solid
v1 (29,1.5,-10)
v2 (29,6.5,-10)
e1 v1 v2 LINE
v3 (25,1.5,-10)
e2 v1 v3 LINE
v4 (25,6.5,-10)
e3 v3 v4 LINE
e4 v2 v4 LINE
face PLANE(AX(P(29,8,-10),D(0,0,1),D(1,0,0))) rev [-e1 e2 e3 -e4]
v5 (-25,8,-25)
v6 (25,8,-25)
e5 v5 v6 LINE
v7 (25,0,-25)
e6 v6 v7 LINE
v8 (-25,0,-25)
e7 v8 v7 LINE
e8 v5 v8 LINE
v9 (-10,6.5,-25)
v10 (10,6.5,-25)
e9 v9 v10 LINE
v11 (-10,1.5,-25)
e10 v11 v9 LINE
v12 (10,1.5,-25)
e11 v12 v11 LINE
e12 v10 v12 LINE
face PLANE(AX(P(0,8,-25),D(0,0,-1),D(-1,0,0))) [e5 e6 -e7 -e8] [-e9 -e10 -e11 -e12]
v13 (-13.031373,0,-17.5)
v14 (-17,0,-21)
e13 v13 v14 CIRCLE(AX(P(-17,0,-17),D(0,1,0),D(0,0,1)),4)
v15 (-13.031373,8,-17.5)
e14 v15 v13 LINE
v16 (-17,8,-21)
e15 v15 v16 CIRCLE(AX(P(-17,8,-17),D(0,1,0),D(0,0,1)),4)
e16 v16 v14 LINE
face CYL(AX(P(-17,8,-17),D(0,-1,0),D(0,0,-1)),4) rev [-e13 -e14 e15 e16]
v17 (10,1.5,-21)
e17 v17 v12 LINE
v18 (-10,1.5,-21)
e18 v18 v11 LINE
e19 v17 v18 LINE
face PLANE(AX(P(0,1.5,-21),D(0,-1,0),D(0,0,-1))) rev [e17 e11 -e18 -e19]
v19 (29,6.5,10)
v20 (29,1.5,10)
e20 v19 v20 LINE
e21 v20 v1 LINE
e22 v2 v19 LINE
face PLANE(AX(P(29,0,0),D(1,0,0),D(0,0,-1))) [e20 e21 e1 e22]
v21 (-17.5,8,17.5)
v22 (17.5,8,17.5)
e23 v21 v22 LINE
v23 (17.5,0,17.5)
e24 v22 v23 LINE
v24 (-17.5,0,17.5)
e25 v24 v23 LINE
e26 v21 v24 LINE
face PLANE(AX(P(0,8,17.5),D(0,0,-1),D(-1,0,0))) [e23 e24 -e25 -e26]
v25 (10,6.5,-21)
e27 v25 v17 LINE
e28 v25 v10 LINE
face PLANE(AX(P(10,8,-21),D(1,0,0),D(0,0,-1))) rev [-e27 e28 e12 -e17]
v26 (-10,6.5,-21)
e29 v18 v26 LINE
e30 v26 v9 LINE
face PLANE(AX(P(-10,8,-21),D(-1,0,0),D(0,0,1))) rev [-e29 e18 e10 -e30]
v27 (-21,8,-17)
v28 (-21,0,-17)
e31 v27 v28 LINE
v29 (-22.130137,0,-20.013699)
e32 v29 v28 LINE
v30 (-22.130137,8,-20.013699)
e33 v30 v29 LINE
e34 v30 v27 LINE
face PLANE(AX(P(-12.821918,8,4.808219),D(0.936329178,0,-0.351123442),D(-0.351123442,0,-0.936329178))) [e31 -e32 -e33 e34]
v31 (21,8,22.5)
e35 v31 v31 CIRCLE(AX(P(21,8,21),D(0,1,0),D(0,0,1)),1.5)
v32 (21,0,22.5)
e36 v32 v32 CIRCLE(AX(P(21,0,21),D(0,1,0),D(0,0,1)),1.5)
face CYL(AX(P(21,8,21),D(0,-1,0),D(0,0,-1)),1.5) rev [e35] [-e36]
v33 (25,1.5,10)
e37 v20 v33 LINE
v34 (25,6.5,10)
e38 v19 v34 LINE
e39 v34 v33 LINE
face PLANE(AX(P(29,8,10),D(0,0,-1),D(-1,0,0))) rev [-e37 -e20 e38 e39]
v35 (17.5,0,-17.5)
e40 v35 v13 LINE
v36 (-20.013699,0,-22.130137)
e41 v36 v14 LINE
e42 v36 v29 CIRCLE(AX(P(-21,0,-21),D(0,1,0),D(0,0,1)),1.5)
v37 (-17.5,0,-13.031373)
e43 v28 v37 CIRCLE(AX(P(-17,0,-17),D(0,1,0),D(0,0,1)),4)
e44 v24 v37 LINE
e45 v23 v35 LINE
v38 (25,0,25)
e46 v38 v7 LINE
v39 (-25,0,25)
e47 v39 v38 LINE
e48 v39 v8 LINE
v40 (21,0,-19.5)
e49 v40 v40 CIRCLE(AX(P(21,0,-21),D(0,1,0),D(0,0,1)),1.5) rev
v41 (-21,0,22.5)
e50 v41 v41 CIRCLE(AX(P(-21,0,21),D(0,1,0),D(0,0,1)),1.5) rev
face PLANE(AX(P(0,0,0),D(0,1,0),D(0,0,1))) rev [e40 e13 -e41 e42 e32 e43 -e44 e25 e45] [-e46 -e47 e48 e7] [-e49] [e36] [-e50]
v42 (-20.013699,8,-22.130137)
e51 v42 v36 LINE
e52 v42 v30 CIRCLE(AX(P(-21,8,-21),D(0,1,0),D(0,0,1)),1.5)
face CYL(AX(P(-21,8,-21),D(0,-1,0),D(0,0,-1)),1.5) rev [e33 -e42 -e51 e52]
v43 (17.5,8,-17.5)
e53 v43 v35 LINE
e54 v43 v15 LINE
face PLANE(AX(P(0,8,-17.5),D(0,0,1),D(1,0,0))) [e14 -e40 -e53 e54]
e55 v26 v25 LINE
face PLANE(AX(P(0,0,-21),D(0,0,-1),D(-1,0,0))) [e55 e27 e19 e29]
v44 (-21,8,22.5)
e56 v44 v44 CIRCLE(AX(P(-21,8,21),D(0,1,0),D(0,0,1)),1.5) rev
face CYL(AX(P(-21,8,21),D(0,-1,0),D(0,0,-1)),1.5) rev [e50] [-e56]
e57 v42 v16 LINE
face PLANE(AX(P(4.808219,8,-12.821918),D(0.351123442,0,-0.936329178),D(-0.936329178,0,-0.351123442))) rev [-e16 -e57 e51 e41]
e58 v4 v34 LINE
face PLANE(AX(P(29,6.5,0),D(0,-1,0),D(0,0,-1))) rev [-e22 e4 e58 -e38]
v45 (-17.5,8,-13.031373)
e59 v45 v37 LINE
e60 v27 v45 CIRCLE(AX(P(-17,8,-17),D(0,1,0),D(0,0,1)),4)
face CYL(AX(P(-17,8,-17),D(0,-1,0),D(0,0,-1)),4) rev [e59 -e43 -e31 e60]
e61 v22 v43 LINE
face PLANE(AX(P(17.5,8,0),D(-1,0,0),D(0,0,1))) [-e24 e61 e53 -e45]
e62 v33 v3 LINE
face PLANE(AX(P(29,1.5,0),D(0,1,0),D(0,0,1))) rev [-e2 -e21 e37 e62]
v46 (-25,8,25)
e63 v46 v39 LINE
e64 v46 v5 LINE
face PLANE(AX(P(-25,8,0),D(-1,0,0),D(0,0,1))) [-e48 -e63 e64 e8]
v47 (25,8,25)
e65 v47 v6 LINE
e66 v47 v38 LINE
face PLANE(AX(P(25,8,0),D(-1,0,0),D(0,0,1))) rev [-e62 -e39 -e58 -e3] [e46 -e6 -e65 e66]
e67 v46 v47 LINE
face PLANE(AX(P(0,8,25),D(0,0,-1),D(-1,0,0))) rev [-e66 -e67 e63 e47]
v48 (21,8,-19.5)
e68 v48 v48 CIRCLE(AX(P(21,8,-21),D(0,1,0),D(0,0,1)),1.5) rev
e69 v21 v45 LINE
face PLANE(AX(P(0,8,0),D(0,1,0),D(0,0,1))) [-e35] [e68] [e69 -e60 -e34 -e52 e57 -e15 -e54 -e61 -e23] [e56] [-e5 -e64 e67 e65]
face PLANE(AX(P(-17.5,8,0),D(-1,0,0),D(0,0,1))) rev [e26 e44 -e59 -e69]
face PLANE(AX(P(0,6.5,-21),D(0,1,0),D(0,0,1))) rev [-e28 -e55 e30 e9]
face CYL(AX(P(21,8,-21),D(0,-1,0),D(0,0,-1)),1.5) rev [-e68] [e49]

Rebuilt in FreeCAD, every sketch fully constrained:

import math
import FreeCAD as App
import Part
import Sketcher
Q = App.Units.Quantity

doc = App.newDocument("Part")
body = doc.addObject("PartDesign::Body", "Body")

# Sketch on XZ plane
sketch1 = body.newObject("Sketcher::SketchObject", "Sketch")
sketch1.AttachmentSupport = (doc.getObject("XZ_Plane"), [""])
sketch1.MapMode = "FlatFace"
sketch1.addGeometry(Part.LineSegment(App.Vector(-25, -25, 0), App.Vector(-25, 25, 0)), False)
sketch1.addGeometry(Part.LineSegment(App.Vector(-25, 25, 0), App.Vector(25, 25, 0)), False)
sketch1.addGeometry(Part.LineSegment(App.Vector(25, 25, 0), App.Vector(25, -25, 0)), False)
sketch1.addGeometry(Part.LineSegment(App.Vector(25, -25, 0), App.Vector(-25, -25, 0)), False)
sketch1.addGeometry(Part.Circle(App.Vector(-21, 21, 0), App.Vector(0, 0, 1), 1.5), False)
sketch1.addGeometry(Part.Circle(App.Vector(21, 21, 0), App.Vector(0, 0, 1), 1.5), False)
sketch1.addGeometry(Part.ArcOfCircle(Part.Circle(App.Vector(-17, -17, 0), App.Vector(0, 0, 1), 4), math.radians(-90), math.radians(-7.180756)), False)
sketch1.addGeometry(Part.LineSegment(App.Vector(-13.031373, -17.5, 0), App.Vector(17.5, -17.5, 0)), False)
sketch1.addGeometry(Part.LineSegment(App.Vector(17.5, -17.5, 0), App.Vector(17.5, 17.5, 0)), False)
sketch1.addGeometry(Part.LineSegment(App.Vector(17.5, 17.5, 0), App.Vector(-17.5, 17.5, 0)), False)
sketch1.addGeometry(Part.LineSegment(App.Vector(-17.5, 17.5, 0), App.Vector(-17.5, -13.031373, 0)), False)
sketch1.addGeometry(Part.ArcOfCircle(Part.Circle(App.Vector(-17, -17, 0), App.Vector(0, 0, 1), 4), math.radians(97.180756), math.radians(180)), False)
sketch1.addGeometry(Part.LineSegment(App.Vector(-21, -17, 0), App.Vector(-22.130137, -20.013699, 0)), False)
sketch1.addGeometry(Part.ArcOfCircle(Part.Circle(App.Vector(-21, -21, 0), App.Vector(0, 0, 1), 1.5), math.radians(138.88791), math.radians(311.11209)), False)
sketch1.addGeometry(Part.LineSegment(App.Vector(-20.013699, -22.130137, 0), App.Vector(-17, -21, 0)), False)
sketch1.addGeometry(Part.Circle(App.Vector(21, -21, 0), App.Vector(0, 0, 1), 1.5), False)
sketch1.addConstraint(Sketcher.Constraint("Coincident", 0, 2, 1, 1))
sketch1.addConstraint(Sketcher.Constraint("Coincident", 1, 2, 2, 1))
sketch1.addConstraint(Sketcher.Constraint("Coincident", 2, 2, 3, 1))
sketch1.addConstraint(Sketcher.Constraint("Coincident", 3, 2, 0, 1))
sketch1.addConstraint(Sketcher.Constraint("Coincident", 6, 2, 7, 1))
sketch1.addConstraint(Sketcher.Constraint("Coincident", 7, 2, 8, 1))
sketch1.addConstraint(Sketcher.Constraint("Coincident", 8, 2, 9, 1))
sketch1.addConstraint(Sketcher.Constraint("Coincident", 9, 2, 10, 1))
sketch1.addConstraint(Sketcher.Constraint("Coincident", 10, 2, 11, 1))
sketch1.addConstraint(Sketcher.Constraint("Coincident", 11, 2, 12, 1))
sketch1.addConstraint(Sketcher.Constraint("Coincident", 12, 2, 13, 1))
sketch1.addConstraint(Sketcher.Constraint("Coincident", 13, 2, 14, 1))
sketch1.addConstraint(Sketcher.Constraint("Coincident", 14, 2, 6, 1))
sketch1.addConstraint(Sketcher.Constraint("Vertical", 0))
sketch1.addConstraint(Sketcher.Constraint("Horizontal", 1))
sketch1.addConstraint(Sketcher.Constraint("Vertical", 2))
sketch1.addConstraint(Sketcher.Constraint("Horizontal", 3))
sketch1.addConstraint(Sketcher.Constraint("Horizontal", 7))
sketch1.addConstraint(Sketcher.Constraint("Vertical", 8))
sketch1.addConstraint(Sketcher.Constraint("Horizontal", 9))
sketch1.addConstraint(Sketcher.Constraint("Vertical", 10))
sketch1.addConstraint(Sketcher.Constraint("Coincident", 11, 3, 6, 3))
sketch1.addConstraint(Sketcher.Constraint("Equal", 4, 5))
sketch1.addConstraint(Sketcher.Constraint("Equal", 6, 11))
sketch1.addConstraint(Sketcher.Constraint("Equal", 5, 13))
sketch1.addConstraint(Sketcher.Constraint("Equal", 13, 15))
sketch1.addConstraint(Sketcher.Constraint("Symmetric", 5, 3, 13, 3, -1, 1))
sketch1.addConstraint(Sketcher.Constraint("Symmetric", 4, 3, 15, 3, -1, 1))
sketch1.addConstraint(Sketcher.Constraint("Symmetric", 0, 2, 2, 2, -1, 1))
sketch1.addConstraint(Sketcher.Constraint("Symmetric", 7, 2, 9, 2, -1, 1))
sketch1.addConstraint(Sketcher.Constraint("Symmetric", 4, 3, 5, 3, -2))
sketch1.addConstraint(Sketcher.Constraint("Horizontal", 6, 3, 11, 2))
sketch1.addConstraint(Sketcher.Constraint("Horizontal", 15, 3, 14, 2))
sketch1.addConstraint(Sketcher.Constraint("Vertical", 13, 3, 11, 2))
sketch1.addConstraint(Sketcher.Constraint("Vertical", 11, 3, 14, 2))
sketch1.addConstraint(Sketcher.Constraint("Equal", 3, 0))
sketch1.addConstraint(Sketcher.Constraint("Equal", 9, 8))
sketch1.addConstraint(Sketcher.Constraint("Equal", 7, 10))
sketch1.addConstraint(Sketcher.Constraint("Equal", 12, 14))
sketch1.addConstraint(Sketcher.Constraint("Diameter", 4, Q("3 mm")))
sketch1.addConstraint(Sketcher.Constraint("Radius", 6, Q("4 mm")))
sketch1.addConstraint(Sketcher.Constraint("DistanceX", 1, 1, 1, 2, Q("50 mm")))
sketch1.addConstraint(Sketcher.Constraint("DistanceX", 9, 2, 9, 1, Q("35 mm")))
sketch1.addConstraint(Sketcher.Constraint("DistanceX", 4, 3, -1, 1, Q("21 mm")))
sketch1.addConstraint(Sketcher.Constraint("DistanceY", 12, 2, -1, 1, Q("20.013699 mm")))
pad1 = body.newObject("PartDesign::Pad", "Pad")
pad1.Profile = sketch1
pad1.Length = 8
pad1.Reversed = True

# Sketch on XY plane
sketch2 = body.newObject("Sketcher::SketchObject", "Sketch001")
sketch2.AttachmentSupport = (doc.getObject("XY_Plane"), [""])
sketch2.MapMode = "FlatFace"
sketch2.AttachmentOffset = App.Placement(App.Vector(0, 0, -25), App.Rotation())
sketch2.addGeometry(Part.LineSegment(App.Vector(-10, 6.5, 0), App.Vector(-10, 1.5, 0)), False)
sketch2.addGeometry(Part.LineSegment(App.Vector(-10, 1.5, 0), App.Vector(10, 1.5, 0)), False)
sketch2.addGeometry(Part.LineSegment(App.Vector(10, 1.5, 0), App.Vector(10, 6.5, 0)), False)
sketch2.addGeometry(Part.LineSegment(App.Vector(10, 6.5, 0), App.Vector(-10, 6.5, 0)), False)
sketch2.addConstraint(Sketcher.Constraint("Coincident", 0, 2, 1, 1))
sketch2.addConstraint(Sketcher.Constraint("Coincident", 1, 2, 2, 1))
sketch2.addConstraint(Sketcher.Constraint("Coincident", 2, 2, 3, 1))
sketch2.addConstraint(Sketcher.Constraint("Coincident", 3, 2, 0, 1))
sketch2.addConstraint(Sketcher.Constraint("Vertical", 0))
sketch2.addConstraint(Sketcher.Constraint("Horizontal", 1))
sketch2.addConstraint(Sketcher.Constraint("Vertical", 2))
sketch2.addConstraint(Sketcher.Constraint("Horizontal", 3))
sketch2.addConstraint(Sketcher.Constraint("DistanceX", 1, 1, 1, 2, Q("20 mm")))
sketch2.addConstraint(Sketcher.Constraint("DistanceY", 0, 2, 0, 1, Q("5 mm")))
sketch2.addConstraint(Sketcher.Constraint("DistanceX", 0, 2, -1, 1, Q("10 mm")))
sketch2.addConstraint(Sketcher.Constraint("DistanceY", -1, 1, 0, 2, Q("1.5 mm")))
pocket1 = body.newObject("PartDesign::Pocket", "Pocket")
pocket1.Profile = sketch2
pocket1.Length = 4
pocket1.Reversed = True

# Sketch on YZ plane
sketch3 = body.newObject("Sketcher::SketchObject", "Sketch002")
sketch3.AttachmentSupport = (doc.getObject("YZ_Plane"), [""])
sketch3.MapMode = "FlatFace"
sketch3.AttachmentOffset = App.Placement(App.Vector(0, 0, 25), App.Rotation())
sketch3.addGeometry(Part.LineSegment(App.Vector(6.5, 10, 0), App.Vector(1.5, 10, 0)), False)
sketch3.addGeometry(Part.LineSegment(App.Vector(1.5, 10, 0), App.Vector(1.5, -10, 0)), False)
sketch3.addGeometry(Part.LineSegment(App.Vector(1.5, -10, 0), App.Vector(6.5, -10, 0)), False)
sketch3.addGeometry(Part.LineSegment(App.Vector(6.5, -10, 0), App.Vector(6.5, 10, 0)), False)
sketch3.addConstraint(Sketcher.Constraint("Coincident", 0, 2, 1, 1))
sketch3.addConstraint(Sketcher.Constraint("Coincident", 1, 2, 2, 1))
sketch3.addConstraint(Sketcher.Constraint("Coincident", 2, 2, 3, 1))
sketch3.addConstraint(Sketcher.Constraint("Coincident", 3, 2, 0, 1))
sketch3.addConstraint(Sketcher.Constraint("Horizontal", 0))
sketch3.addConstraint(Sketcher.Constraint("Vertical", 1))
sketch3.addConstraint(Sketcher.Constraint("Horizontal", 2))
sketch3.addConstraint(Sketcher.Constraint("Vertical", 3))
sketch3.addConstraint(Sketcher.Constraint("DistanceX", 0, 2, 0, 1, Q("5 mm")))
sketch3.addConstraint(Sketcher.Constraint("DistanceY", 1, 2, 1, 1, Q("20 mm")))
sketch3.addConstraint(Sketcher.Constraint("DistanceY", -1, 1, 0, 2, Q("10 mm")))
sketch3.addConstraint(Sketcher.Constraint("DistanceX", -1, 1, 0, 2, Q("1.5 mm")))
pad2 = body.newObject("PartDesign::Pad", "Pad001")
pad2.Profile = sketch3
pad2.Length = 4

doc.recompute()
